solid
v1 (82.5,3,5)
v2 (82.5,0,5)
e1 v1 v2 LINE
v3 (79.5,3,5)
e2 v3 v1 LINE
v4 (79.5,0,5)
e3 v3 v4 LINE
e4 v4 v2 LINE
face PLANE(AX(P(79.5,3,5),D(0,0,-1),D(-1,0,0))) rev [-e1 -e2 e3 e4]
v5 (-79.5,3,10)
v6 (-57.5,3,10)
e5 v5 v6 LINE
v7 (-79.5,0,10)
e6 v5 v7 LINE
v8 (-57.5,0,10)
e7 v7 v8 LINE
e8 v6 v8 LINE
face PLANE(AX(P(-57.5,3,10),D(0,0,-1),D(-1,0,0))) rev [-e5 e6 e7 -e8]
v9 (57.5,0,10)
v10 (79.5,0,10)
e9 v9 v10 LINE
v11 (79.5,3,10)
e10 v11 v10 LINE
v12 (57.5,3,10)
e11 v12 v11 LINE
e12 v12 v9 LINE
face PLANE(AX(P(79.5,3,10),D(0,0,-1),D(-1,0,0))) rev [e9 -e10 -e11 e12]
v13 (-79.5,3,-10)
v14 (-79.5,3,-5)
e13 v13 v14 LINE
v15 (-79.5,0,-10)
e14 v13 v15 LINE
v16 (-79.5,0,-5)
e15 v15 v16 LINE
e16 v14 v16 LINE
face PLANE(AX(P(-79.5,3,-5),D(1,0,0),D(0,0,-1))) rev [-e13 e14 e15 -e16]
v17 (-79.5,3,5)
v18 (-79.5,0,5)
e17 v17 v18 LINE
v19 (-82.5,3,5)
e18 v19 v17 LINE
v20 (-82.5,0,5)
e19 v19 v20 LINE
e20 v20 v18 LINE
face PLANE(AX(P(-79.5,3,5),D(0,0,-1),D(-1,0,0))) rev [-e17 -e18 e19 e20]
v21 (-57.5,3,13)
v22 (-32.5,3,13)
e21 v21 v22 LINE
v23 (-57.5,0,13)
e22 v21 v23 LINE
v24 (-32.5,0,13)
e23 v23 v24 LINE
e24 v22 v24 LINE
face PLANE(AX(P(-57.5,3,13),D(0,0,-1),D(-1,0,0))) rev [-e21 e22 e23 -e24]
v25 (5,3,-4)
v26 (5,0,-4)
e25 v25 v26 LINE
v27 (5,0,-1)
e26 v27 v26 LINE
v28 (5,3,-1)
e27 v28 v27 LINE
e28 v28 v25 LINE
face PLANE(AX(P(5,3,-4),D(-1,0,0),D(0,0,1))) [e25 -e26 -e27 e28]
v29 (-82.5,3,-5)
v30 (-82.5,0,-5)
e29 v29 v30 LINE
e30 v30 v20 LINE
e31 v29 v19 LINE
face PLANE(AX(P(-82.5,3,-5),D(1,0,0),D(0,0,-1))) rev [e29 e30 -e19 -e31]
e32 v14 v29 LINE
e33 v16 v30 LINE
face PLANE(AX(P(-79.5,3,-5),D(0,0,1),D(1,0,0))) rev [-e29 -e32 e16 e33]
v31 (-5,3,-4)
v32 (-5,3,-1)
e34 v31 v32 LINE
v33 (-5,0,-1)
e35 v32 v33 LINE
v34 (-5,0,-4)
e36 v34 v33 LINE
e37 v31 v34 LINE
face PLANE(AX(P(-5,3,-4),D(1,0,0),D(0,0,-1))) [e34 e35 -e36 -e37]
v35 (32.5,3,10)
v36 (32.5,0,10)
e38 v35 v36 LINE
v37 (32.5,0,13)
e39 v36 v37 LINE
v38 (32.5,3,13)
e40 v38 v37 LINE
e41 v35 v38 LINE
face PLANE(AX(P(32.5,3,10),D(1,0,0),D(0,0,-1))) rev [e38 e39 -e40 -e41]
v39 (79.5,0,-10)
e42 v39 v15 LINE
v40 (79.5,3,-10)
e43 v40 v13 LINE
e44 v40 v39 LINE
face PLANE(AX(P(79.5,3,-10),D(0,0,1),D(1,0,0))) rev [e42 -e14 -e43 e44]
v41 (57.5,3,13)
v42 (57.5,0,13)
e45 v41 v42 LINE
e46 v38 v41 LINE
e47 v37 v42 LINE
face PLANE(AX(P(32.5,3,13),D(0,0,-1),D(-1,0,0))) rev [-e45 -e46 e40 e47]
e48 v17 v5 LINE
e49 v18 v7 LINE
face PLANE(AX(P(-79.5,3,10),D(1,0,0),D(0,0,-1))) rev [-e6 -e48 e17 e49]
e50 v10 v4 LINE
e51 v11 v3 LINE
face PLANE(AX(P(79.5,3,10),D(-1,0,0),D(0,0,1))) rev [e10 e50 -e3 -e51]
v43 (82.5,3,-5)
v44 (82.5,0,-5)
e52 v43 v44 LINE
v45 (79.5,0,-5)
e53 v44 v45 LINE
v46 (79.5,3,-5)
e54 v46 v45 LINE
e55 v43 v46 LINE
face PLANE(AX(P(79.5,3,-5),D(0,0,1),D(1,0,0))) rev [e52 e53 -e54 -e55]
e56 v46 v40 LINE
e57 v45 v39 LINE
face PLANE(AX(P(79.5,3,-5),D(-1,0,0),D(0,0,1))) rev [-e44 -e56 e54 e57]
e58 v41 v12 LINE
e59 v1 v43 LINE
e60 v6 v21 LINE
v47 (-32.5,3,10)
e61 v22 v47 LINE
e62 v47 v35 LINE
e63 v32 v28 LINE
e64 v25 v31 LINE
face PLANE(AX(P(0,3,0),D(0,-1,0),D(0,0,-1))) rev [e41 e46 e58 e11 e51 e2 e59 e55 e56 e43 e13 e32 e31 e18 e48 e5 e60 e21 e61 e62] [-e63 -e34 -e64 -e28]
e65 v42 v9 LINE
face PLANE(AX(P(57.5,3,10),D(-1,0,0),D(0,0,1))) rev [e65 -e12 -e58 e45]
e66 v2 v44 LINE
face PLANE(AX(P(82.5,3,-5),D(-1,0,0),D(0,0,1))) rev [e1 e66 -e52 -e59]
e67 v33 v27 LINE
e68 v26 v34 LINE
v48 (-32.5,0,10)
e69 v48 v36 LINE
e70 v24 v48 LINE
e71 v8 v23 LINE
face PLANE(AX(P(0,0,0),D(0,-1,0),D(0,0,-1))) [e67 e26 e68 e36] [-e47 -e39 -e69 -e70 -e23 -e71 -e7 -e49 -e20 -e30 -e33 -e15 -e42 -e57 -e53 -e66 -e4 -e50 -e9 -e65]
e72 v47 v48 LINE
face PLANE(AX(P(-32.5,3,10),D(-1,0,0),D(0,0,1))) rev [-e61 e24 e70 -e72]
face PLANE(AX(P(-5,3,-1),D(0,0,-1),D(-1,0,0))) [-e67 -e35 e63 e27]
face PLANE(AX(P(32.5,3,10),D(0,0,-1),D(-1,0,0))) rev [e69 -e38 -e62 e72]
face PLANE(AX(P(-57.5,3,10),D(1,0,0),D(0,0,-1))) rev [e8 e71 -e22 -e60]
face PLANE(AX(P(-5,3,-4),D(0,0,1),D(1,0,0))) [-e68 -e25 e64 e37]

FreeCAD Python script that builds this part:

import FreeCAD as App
import Part
import Sketcher
from FreeCAD import Vector


def add_polygon(sketch, points):
    """Adds a closed chain of lines whose ends are joined by coincident constraints."""
    first, n = sketch.GeometryCount, len(points)
    for a, b in zip(points, points[1:] + points[:1]):
        sketch.addGeometry(Part.LineSegment(App.Vector(*a, 0), App.Vector(*b, 0)), False)
    for i in range(n):
        sketch.addConstraint(Sketcher.Constraint("Coincident", first + i, 2, first + (i + 1) % n, 1))

doc = App.newDocument("Part")
params = doc.addObject("Spreadsheet::Sheet", "Params")
for row, (alias, value) in enumerate([
    ("sketch1_width", "3 mm"),
    ("sketch1_width2", "22 mm"),
    ("sketch1_width3", "25 mm"),
    ("sketch1_width4", "65 mm"),
    ("sketch1_width5", "10 mm"),
    ("pad1_length", "3 mm"),
], start=1):
    params.set(f"A{row}", alias)
    params.set(f"B{row}", "=" + value)
    params.setAlias(f"B{row}", alias)

body = doc.addObject("PartDesign::Body", "Body")

# Sketch on XZ plane
sketch1 = body.newObject("Sketcher::SketchObject", "Sketch")
sketch1.AttachmentSupport = (doc.getObject("XZ_Plane"), [""])
sketch1.MapMode = "FlatFace"
add_polygon(sketch1, [(-79.5, -10), (-79.5, -5), (-82.5, -5), (-82.5, 5), (-79.5, 5), (-79.5, 10), (-57.5, 10), (-57.5, 13), (-32.5, 13), (-32.5, 10), (32.5, 10), (32.5, 13), (57.5, 13), (57.5, 10), (79.5, 10), (79.5, 5), (82.5, 5), (82.5, -5), (79.5, -5), (79.5, -10)])  # lines 0-19
add_polygon(sketch1, [(-5, -1), (-5, -4), (5, -4), (5, -1)])  # lines 20-23
sketch1.addConstraint([
    Sketcher.Constraint("Vertical", 0),
    Sketcher.Constraint("Horizontal", 1),
    Sketcher.Constraint("Vertical", 2),
    Sketcher.Constraint("Horizontal", 3),
    Sketcher.Constraint("Vertical", 4),
    Sketcher.Constraint("Horizontal", 5),
    Sketcher.Constraint("Vertical", 6),
    Sketcher.Constraint("Horizontal", 7),
    Sketcher.Constraint("Vertical", 8),
    Sketcher.Constraint("Horizontal", 9),
    Sketcher.Constraint("Vertical", 10),
    Sketcher.Constraint("Horizontal", 11),
    Sketcher.Constraint("Vertical", 12),
    Sketcher.Constraint("Horizontal", 13),
    Sketcher.Constraint("Vertical", 14),
    Sketcher.Constraint("Horizontal", 15),
    Sketcher.Constraint("Vertical", 16),
    Sketcher.Constraint("Horizontal", 17),
    Sketcher.Constraint("Vertical", 18),
    Sketcher.Constraint("Horizontal", 19),
    Sketcher.Constraint("Vertical", 20),
    Sketcher.Constraint("Horizontal", 21),
    Sketcher.Constraint("Vertical", 22),
    Sketcher.Constraint("Horizontal", 23),
    Sketcher.Constraint("Symmetric", 0, 2, 14, 2, -1, 1),
    Sketcher.Constraint("Symmetric", 2, 2, 16, 2, -1, 1),
    Sketcher.Constraint("Symmetric", 4, 2, 18, 2, -1, 1),
    Sketcher.Constraint("Symmetric", 7, 2, 10, 2, -2),
    Sketcher.Constraint("Symmetric", 5, 2, 12, 2, -2),
    Sketcher.Constraint("Symmetric", 3, 2, 14, 2, -2),
    Sketcher.Constraint("Horizontal", 5, 2, 8, 2),
    Sketcher.Constraint("Equal", 23, 2),
    Sketcher.Constraint("Equal", 17, 6),
    Sketcher.Constraint("Equal", 12, 20),
    Sketcher.Constraint("DistanceX", 1, 2, 1, 1, 3.0),
    Sketcher.Constraint("DistanceX", 5, 1, 5, 2, 22.0),
    Sketcher.Constraint("DistanceX", 7, 1, 7, 2, 25.0),
    Sketcher.Constraint("DistanceX", 9, 1, 9, 2, 65.0),
    Sketcher.Constraint("DistanceX", 21, 1, 21, 2, 10.0),
    Sketcher.Constraint("DistanceY", 0, 1, 0, 2, 5.0),
    Sketcher.Constraint("DistanceX", 20, 2, -1, 1, 5.0),
    Sketcher.Constraint("DistanceY", 20, 2, -1, 1, 4.0),
])
sketch1.setExpression("Constraints[58]", "Params.sketch1_width")
sketch1.setExpression("Constraints[59]", "Params.sketch1_width2")
sketch1.setExpression("Constraints[60]", "Params.sketch1_width3")
sketch1.setExpression("Constraints[61]", "Params.sketch1_width4")
sketch1.setExpression("Constraints[62]", "Params.sketch1_width5")
pad1 = body.newObject("PartDesign::Pad", "Pad")
pad1.Profile = sketch1
pad1.setExpression("Length", "Params.pad1_length")
pad1.Reversed = True

doc.recompute()
